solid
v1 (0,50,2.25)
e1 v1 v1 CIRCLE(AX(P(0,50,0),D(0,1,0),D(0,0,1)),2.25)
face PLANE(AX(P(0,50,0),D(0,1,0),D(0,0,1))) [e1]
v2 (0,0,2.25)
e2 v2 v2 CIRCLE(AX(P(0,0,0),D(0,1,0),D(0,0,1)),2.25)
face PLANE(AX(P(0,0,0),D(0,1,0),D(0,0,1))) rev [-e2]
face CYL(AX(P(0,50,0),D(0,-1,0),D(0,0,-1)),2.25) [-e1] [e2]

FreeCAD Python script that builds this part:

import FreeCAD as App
import Part
import Sketcher
Q = App.Units.Quantity

doc = App.newDocument("Part")
params = doc.addObject("Spreadsheet::Sheet", "Params")
for row, (alias, value) in enumerate([
    ("sketch1_diameter", "4.5 mm"),
    ("pad1_length", "50 mm"),
], start=1):
    params.set(f"A{row}", alias)
    params.set(f"B{row}", "=" + value)
    params.setAlias(f"B{row}", alias)

body = doc.addObject("PartDesign::Body", "Body")

# Sketch on XZ plane
sketch1 = doc.addObject("Sketcher::SketchObject", "Sketch")
body.addObject(sketch1)
sketch1.AttachmentSupport = (doc.XZ_Plane, [""])
sketch1.MapMode = "FlatFace"
sketch1.addGeometry(Part.Circle(App.Vector(0, 0, 0), App.Vector(0, 0, 1), 2.2), False)
sketch1.addConstraint(Sketcher.Constraint("Coincident", 0, 3, -1, 1))
sketch1.addConstraint(Sketcher.Constraint("Diameter", 0, Q("4.5 mm")))
sketch1.setExpression("Constraints[1]", "Params.sketch1_diameter")
pad1 = doc.addObject("PartDesign::Pad", "Pad")
body.addObject(pad1)
pad1.Profile = sketch1
pad1.setExpression("Length", "Params.pad1_length")
pad1.Reversed = True

doc.recompute()
